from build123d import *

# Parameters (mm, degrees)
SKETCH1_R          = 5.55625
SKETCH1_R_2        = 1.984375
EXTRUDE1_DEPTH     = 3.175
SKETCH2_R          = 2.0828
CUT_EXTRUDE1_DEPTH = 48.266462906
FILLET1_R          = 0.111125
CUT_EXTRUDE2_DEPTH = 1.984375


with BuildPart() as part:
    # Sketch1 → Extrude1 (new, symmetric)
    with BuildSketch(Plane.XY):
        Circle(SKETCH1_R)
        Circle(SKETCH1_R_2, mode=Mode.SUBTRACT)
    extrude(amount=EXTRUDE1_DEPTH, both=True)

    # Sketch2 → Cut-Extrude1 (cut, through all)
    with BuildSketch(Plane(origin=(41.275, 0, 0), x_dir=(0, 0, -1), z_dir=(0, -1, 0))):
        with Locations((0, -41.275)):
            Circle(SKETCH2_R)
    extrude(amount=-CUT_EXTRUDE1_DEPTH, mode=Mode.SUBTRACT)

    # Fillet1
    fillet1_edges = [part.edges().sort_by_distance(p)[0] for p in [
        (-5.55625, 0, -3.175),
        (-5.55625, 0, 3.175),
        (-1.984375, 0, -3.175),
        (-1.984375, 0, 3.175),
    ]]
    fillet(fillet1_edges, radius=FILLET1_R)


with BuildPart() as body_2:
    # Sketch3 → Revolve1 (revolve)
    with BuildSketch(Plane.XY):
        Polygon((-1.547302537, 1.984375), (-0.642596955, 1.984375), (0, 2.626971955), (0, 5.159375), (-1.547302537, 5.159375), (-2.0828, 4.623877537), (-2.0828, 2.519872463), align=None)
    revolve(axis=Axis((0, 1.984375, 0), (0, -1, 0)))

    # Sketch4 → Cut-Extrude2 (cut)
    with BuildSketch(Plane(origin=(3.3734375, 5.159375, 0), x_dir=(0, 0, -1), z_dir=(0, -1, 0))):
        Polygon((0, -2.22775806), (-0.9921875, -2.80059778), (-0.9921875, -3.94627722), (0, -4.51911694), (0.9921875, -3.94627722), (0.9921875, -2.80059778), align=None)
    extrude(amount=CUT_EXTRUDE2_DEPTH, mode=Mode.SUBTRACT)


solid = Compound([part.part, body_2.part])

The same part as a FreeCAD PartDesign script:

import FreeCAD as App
import Part
import Sketcher
Q = App.Units.Quantity


def edges_at(feature, points):
    """Names of the edges that pass closest to the given points."""
    edges = feature.Shape.Edges
    near = lambda p: min(range(len(edges)), key=lambda i: edges[i].distToShape(Part.Vertex(*p))[0])
    return sorted({f"Edge{near(p) + 1}" for p in points})


def add_polygon(sketch, points):
    """Adds a closed chain of lines whose ends are joined by coincident constraints."""
    first, n = sketch.GeometryCount, len(points)
    for a, b in zip(points, points[1:] + points[:1]):
        sketch.addGeometry(Part.LineSegment(App.Vector(*a, 0), App.Vector(*b, 0)), False)
    for i in range(n):
        sketch.addConstraint(Sketcher.Constraint("Coincident", first + i, 2, first + (i + 1) % n, 1))

doc = App.newDocument("Part")
body = doc.addObject("PartDesign::Body", "Body")

# Sketch on XY plane
sketch1 = body.newObject("Sketcher::SketchObject", "Sketch")
sketch1.AttachmentSupport = (doc.getObject("XY_Plane"), [""])
sketch1.MapMode = "FlatFace"
sketch1.addGeometry([
    Part.Circle(App.Vector(0, 0, 0), App.Vector(0, 0, 1), 5.6),
    Part.Circle(App.Vector(0, 0, 0), App.Vector(0, 0, 1), 2),
], False)
sketch1.addConstraint([
    Sketcher.Constraint("Coincident", 0, 3, -1, 1),
    Sketcher.Constraint("Coincident", 1, 3, -1, 1),
    Sketcher.Constraint("Diameter", 0, Q("0.4375 in")),
    Sketcher.Constraint("Diameter", 1, Q("0.15625 in")),
])
pad1 = body.newObject("PartDesign::Pad", "Pad")
pad1.Profile = sketch1
pad1.Length = Q("0.25 in")
pad1.Midplane = True

# Sketch on XZ plane
sketch2 = body.newObject("Sketcher::SketchObject", "Sketch001")
sketch2.AttachmentSupport = (doc.getObject("XZ_Plane"), [""])
sketch2.MapMode = "FlatFace"
sketch2.addGeometry(Part.Circle(App.Vector(0, 0, 0), App.Vector(0, 0, 1), 2.1), False)
sketch2.addConstraint([
    Sketcher.Constraint("Coincident", 0, 3, -1, 1),
    Sketcher.Constraint("Diameter", 0, Q("0.164 in")),
])
pocket1 = body.newObject("PartDesign::Pocket", "Pocket")
pocket1.Profile = sketch2
pocket1.Type = "ThroughAll"
doc.recompute()

fillet = body.newObject("PartDesign::Fillet", "Fillet")
fillet.Base = (pocket1, edges_at(pocket1, [
    (-5.556, 0, -3.175),
    (-5.556, 0, 3.175),
    (-1.984, 0, -3.175),
    (-1.984, 0, 3.175),
]))
fillet.Radius = 0.111125
body2 = doc.addObject("PartDesign::Body", "Body001")

# Sketch on XY plane
sketch3 = body2.newObject("Sketcher::SketchObject", "Sketch002")
sketch3.AttachmentSupport = (doc.getObject("XY_Plane001"), [""])
sketch3.MapMode = "FlatFace"
add_polygon(sketch3, [(-1.5, 2), (-0.6, 2), (0, 2.6), (0, 5.2), (-1.5, 5.2), (-2.1, 4.6), (-2.1, 2.5)])  # lines 0-6
sketch3.addConstraint([
    Sketcher.Constraint("Horizontal", 0),
    Sketcher.Constraint("Vertical", 2),
    Sketcher.Constraint("Horizontal", 3),
    Sketcher.Constraint("Vertical", 5),
    Sketcher.Constraint("PointOnObject", 1, 2, -2),
    Sketcher.Constraint("Parallel", 1, 4),
    Sketcher.Constraint("Perpendicular", 4, 6),
    Sketcher.Constraint("Vertical", 3, 2, 6, 2),
    Sketcher.Constraint("Equal", 4, 6),
    Sketcher.Constraint("DistanceY", -1, 1, 0, 2, Q("0.078125 in")),
    Sketcher.Constraint("DistanceY", -1, 1, 2, 2, Q("0.203125 in")),
    Sketcher.Constraint("DistanceX", 4, 2, -1, 1, Q("0.082 in")),
    Sketcher.Constraint("DistanceY", 5, 2, 1, 2, 0.107099),
    Sketcher.Constraint("Distance", 1, 0.908769),
])
revolution = body2.newObject("PartDesign::Revolution", "Revolution")
revolution.Profile = sketch3
revolution.ReferenceAxis = (sketch3, ["V_Axis"])
revolution.Angle = 360

# Sketch on XZ plane
sketch4 = body2.newObject("Sketcher::SketchObject", "Sketch003")
sketch4.AttachmentSupport = (doc.getObject("XZ_Plane001"), [""])
sketch4.MapMode = "FlatFace"
sketch4.AttachmentOffset = App.Placement(App.Vector(0, 0, -0.203125 * 25.4), App.Rotation())
add_polygon(sketch4, [(1.1, 0), (0.6, 1), (-0.6, 1), (-1.1, 0), (-0.6, -1), (0.6, -1)])  # lines 0-5
sketch4.addConstraint([
    Sketcher.Constraint("Horizontal", 1),
    Sketcher.Constraint("Horizontal", 4),
    Sketcher.Constraint("Symmetric", 0, 2, 3, 2, -1, 1),
    Sketcher.Constraint("Symmetric", 2, 2, 5, 2, -1, 1),
    Sketcher.Constraint("PointOnObject", 2, 2, -1),
    Sketcher.Constraint("Parallel", 2, 5),
    Sketcher.Constraint("Vertical", 1, 2, 3, 2),
    Sketcher.Constraint("Angle", 0, Q("120 deg")),
    Sketcher.Constraint("DistanceY", 3, 2, 1, 2, Q("0.078125 in")),
    Sketcher.Constraint("DistanceX", 1, 2, 1, 1, 1.145679),
])
pocket2 = body2.newObject("PartDesign::Pocket", "Pocket001")
pocket2.Profile = sketch4
pocket2.Length = Q("0.078125 in")
pocket2.Reversed = True

doc.recompute()
